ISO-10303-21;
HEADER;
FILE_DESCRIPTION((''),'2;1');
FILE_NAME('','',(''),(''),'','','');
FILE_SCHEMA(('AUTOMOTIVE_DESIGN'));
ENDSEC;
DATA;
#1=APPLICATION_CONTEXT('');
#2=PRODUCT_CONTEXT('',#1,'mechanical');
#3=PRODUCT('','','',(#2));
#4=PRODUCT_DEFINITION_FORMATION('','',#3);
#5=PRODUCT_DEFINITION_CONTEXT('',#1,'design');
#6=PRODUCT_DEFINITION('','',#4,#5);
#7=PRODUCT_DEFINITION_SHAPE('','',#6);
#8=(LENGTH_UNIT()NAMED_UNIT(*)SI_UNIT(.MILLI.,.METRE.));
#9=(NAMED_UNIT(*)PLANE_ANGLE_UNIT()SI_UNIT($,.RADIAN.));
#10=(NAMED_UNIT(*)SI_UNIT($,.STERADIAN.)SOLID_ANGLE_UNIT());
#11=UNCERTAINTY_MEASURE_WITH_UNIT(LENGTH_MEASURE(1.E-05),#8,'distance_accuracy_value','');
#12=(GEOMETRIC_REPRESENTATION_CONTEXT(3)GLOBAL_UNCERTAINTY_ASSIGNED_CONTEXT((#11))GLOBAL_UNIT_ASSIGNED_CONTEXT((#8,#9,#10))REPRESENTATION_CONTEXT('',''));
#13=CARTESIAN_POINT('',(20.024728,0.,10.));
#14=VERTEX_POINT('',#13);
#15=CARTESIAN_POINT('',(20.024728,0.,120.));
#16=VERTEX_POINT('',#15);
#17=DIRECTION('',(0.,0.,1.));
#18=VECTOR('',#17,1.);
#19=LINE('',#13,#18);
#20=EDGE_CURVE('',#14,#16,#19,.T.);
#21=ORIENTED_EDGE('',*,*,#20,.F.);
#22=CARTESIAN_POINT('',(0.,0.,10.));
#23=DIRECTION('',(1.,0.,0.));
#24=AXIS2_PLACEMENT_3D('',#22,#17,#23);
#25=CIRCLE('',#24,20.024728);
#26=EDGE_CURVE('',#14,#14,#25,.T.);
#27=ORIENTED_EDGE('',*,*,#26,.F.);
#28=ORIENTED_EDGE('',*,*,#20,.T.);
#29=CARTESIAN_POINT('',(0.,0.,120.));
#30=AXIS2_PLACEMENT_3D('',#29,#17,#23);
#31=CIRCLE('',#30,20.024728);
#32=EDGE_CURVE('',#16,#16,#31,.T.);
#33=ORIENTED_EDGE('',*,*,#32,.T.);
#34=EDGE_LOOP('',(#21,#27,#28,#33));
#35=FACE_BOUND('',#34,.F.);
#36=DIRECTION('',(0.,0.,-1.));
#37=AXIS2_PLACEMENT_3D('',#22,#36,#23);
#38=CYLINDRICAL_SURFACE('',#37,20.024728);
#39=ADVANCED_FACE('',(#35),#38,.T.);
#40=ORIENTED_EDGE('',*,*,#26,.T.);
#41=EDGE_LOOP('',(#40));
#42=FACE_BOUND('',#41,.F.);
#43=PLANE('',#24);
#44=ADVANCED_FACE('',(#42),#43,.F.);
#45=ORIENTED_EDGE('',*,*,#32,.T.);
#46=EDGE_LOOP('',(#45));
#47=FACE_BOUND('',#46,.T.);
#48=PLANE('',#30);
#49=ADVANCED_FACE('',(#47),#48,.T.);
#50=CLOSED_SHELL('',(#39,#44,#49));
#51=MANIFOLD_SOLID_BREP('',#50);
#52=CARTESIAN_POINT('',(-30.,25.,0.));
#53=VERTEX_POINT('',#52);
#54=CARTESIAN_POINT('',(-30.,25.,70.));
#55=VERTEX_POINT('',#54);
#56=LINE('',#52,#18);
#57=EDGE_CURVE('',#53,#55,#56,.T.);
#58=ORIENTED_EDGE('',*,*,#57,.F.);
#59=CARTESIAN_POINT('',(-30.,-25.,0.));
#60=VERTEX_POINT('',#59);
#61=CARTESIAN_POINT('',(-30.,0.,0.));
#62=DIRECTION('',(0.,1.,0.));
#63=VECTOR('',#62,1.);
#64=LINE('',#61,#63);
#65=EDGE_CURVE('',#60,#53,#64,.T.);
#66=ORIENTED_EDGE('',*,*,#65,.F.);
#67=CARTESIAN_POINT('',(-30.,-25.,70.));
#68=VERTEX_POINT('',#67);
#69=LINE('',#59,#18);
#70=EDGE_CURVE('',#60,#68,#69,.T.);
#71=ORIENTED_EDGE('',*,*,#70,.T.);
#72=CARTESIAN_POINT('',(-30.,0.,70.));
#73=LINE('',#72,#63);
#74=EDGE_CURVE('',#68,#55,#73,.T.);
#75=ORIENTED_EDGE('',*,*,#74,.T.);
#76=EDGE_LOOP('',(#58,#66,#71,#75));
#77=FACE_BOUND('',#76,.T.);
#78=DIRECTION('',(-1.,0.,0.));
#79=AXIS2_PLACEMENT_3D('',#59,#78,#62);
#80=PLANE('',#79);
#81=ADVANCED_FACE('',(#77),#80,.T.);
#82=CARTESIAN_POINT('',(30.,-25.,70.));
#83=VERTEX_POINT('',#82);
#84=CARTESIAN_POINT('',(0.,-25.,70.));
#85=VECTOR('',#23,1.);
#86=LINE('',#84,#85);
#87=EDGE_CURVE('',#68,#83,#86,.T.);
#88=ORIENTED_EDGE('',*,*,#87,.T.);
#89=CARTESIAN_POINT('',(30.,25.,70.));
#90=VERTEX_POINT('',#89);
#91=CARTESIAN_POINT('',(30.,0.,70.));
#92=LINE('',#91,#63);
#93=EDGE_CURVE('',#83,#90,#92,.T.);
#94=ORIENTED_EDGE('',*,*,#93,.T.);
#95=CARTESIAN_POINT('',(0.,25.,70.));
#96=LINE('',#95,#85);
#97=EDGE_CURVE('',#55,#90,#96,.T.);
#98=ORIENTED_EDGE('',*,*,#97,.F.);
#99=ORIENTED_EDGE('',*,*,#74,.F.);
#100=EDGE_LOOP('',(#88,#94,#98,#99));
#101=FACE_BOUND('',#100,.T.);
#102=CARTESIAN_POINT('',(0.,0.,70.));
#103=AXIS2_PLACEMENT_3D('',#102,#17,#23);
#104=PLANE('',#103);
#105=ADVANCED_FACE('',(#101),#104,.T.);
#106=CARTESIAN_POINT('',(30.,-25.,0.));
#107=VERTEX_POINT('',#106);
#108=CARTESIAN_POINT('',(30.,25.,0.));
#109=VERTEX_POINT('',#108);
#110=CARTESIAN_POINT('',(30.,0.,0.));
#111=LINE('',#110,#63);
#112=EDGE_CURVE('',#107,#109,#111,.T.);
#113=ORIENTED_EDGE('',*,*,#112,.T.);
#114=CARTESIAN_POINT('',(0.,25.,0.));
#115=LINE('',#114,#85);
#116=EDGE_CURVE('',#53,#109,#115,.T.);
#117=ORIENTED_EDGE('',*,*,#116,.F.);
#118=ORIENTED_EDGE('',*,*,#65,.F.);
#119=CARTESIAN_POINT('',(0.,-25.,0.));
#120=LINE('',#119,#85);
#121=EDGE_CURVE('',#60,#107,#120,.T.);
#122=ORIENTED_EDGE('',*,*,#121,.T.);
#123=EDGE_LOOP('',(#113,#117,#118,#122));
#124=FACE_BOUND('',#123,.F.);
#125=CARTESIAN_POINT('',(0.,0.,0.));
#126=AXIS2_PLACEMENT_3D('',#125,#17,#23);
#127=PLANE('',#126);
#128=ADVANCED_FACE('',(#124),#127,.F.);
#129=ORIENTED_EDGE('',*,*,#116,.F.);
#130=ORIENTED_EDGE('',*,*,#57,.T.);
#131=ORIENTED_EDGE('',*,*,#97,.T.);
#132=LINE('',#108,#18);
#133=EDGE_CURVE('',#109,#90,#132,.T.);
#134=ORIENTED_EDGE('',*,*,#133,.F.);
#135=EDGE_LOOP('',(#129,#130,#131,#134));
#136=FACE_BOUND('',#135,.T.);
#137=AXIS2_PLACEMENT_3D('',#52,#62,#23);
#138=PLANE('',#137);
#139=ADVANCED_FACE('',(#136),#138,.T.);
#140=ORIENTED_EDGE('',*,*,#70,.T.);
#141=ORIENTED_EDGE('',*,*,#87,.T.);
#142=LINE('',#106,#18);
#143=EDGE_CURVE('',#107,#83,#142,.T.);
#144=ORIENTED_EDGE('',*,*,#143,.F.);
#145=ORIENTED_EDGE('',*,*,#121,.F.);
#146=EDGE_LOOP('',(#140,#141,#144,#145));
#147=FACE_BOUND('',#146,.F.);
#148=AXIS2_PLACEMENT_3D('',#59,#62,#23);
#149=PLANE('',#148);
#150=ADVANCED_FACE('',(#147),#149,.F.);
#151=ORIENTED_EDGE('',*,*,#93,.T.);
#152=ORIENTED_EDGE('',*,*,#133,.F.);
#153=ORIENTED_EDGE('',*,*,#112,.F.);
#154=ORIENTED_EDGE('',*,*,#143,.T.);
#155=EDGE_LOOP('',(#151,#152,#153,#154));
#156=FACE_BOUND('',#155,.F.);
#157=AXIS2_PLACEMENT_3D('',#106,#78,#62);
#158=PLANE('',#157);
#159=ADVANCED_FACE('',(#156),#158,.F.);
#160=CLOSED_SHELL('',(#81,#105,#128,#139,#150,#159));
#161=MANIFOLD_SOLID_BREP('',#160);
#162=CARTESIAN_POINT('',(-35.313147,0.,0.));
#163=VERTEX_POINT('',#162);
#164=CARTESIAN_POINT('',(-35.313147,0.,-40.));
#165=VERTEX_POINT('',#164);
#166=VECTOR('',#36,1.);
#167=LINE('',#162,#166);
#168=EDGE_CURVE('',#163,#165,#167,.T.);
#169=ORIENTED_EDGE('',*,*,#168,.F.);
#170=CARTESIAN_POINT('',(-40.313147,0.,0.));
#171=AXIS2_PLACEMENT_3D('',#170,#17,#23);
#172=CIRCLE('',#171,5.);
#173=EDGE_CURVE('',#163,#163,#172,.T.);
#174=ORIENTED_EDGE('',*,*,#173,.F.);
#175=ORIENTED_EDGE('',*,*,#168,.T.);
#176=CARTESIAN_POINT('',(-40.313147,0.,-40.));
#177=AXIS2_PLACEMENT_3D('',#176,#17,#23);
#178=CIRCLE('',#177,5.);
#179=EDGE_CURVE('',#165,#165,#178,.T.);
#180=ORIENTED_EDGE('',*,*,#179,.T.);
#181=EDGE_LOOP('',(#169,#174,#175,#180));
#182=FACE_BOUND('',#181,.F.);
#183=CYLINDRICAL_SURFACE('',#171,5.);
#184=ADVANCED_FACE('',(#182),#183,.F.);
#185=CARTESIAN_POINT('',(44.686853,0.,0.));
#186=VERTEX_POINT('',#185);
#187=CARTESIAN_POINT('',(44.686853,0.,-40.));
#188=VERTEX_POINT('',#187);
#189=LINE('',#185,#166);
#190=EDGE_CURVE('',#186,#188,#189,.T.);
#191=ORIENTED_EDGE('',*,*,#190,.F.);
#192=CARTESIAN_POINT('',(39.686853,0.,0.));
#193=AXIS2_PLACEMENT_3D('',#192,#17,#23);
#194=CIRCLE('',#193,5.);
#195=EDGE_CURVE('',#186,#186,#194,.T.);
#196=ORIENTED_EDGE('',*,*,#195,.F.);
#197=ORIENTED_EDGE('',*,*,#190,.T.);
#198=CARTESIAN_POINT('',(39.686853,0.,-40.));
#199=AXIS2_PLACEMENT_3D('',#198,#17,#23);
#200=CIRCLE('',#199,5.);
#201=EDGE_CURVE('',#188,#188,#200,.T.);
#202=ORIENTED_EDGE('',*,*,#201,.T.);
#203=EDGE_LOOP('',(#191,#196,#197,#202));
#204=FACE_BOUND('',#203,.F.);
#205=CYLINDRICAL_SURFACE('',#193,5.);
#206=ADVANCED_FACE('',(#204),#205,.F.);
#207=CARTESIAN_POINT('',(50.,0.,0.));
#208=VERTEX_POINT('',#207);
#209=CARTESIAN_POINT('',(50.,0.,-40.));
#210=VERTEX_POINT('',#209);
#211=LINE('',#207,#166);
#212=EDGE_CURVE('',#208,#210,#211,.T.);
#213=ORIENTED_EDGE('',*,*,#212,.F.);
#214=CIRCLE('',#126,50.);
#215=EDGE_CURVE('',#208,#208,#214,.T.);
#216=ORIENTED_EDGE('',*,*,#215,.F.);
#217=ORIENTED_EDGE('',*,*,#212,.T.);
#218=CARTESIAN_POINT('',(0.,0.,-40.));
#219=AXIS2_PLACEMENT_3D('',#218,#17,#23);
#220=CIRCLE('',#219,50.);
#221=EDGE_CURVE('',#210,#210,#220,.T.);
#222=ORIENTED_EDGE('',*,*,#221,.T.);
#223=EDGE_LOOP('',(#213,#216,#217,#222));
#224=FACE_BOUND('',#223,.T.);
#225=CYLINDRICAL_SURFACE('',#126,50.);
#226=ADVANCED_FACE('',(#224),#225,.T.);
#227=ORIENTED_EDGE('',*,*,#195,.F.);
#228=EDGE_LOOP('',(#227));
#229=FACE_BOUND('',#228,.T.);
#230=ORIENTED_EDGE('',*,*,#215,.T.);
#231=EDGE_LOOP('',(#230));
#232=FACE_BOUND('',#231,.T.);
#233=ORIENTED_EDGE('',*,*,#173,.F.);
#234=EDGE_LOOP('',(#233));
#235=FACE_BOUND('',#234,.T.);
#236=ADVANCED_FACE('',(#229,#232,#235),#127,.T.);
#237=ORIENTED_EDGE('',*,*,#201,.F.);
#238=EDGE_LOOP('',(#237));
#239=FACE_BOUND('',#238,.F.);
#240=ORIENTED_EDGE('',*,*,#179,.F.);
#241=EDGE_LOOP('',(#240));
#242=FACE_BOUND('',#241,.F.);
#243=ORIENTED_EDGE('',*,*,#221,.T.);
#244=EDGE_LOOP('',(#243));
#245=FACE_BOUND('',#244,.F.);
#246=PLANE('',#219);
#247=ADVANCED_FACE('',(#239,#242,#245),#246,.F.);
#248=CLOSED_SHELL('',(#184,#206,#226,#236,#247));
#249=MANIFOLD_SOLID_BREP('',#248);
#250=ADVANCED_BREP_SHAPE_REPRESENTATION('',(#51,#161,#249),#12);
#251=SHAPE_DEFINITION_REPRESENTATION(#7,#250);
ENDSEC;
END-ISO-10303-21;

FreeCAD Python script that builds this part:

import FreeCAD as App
import Part
import Sketcher
from FreeCAD import Vector


def add_polygon(sketch, points):
    """Adds a closed chain of lines whose ends are joined by coincident constraints."""
    first, n = sketch.GeometryCount, len(points)
    for a, b in zip(points, points[1:] + points[:1]):
        sketch.addGeometry(Part.LineSegment(App.Vector(*a, 0), App.Vector(*b, 0)), False)
    for i in range(n):
        sketch.addConstraint(Sketcher.Constraint("Coincident", first + i, 2, first + (i + 1) % n, 1))

doc = App.newDocument("Part")
body = doc.addObject("PartDesign::Body", "Body")

sketch1 = doc.addObject("Sketcher::SketchObject", "Sketch")
body.addObject(sketch1)
sketch1.AttachmentSupport = (doc.XY_Plane, [""])
sketch1.MapMode = "FlatFace"
sketch1.addGeometry(Part.Circle(Vector(0, 0, 0), Vector(0, 0, 1), 50), False)
sketch1.addConstraint([
    Sketcher.Constraint("Coincident", 0, 3, -1, 1),
    Sketcher.Constraint("Diameter", 0, 100.0),
])
pad1 = doc.addObject("PartDesign::Pad", "Pad")
body.addObject(pad1)
pad1.Profile = sketch1
pad1.Length = 40
pad1.Reversed = True

sketch2 = doc.addObject("Sketcher::SketchObject", "Sketch001")
body.addObject(sketch2)
sketch2.AttachmentSupport = (doc.XY_Plane, [""])
sketch2.MapMode = "FlatFace"
sketch2.addGeometry([
    Part.Circle(Vector(-40.313147, 0, 0), Vector(0, 0, 1), 5),
    Part.Circle(Vector(39.686853, 0, 0), Vector(0, 0, 1), 5),
], False)
sketch2.addConstraint([
    Sketcher.Constraint("Equal", 0, 1),
    Sketcher.Constraint("PointOnObject", 0, 3, -1),
    Sketcher.Constraint("PointOnObject", 1, 3, -1),
    Sketcher.Constraint("Diameter", 0, 10.0),
    Sketcher.Constraint("DistanceX", 0, 3, 1, 3, 80.0),
    Sketcher.Constraint("DistanceX", 0, 3, -1, 1, 40.313147),
])
pocket1 = doc.addObject("PartDesign::Pocket", "Pocket")
body.addObject(pocket1)
pocket1.Profile = sketch2
pocket1.Type = "ThroughAll"
pocket1.Midplane = True
body2 = doc.addObject("PartDesign::Body", "Body001")

sketch3 = doc.addObject("Sketcher::SketchObject", "Sketch002")
body2.addObject(sketch3)
sketch3.AttachmentSupport = (doc.getObject("XY_Plane001"), [""])
sketch3.MapMode = "FlatFace"
add_polygon(sketch3, [(-30, 25), (-30, -25), (30, -25), (30, 25)])
sketch3.addConstraint([
    Sketcher.Constraint("Vertical", 0),
    Sketcher.Constraint("Horizontal", 1),
    Sketcher.Constraint("Vertical", 2),
    Sketcher.Constraint("Horizontal", 3),
    Sketcher.Constraint("Symmetric", 0, 2, 2, 2, -1, 1),
    Sketcher.Constraint("DistanceX", 1, 1, 1, 2, 60.0),
    Sketcher.Constraint("DistanceY", 0, 2, 0, 1, 50.0),
])
pad2 = doc.addObject("PartDesign::Pad", "Pad001")
body2.addObject(pad2)
pad2.Profile = sketch3
pad2.Length = 70
body3 = doc.addObject("PartDesign::Body", "Body002")

sketch4 = doc.addObject("Sketcher::SketchObject", "Sketch003")
body3.addObject(sketch4)
sketch4.AttachmentSupport = (doc.getObject("XY_Plane002"), [""])
sketch4.MapMode = "FlatFace"
sketch4.AttachmentOffset = App.Placement(Vector(0, 0, 10), App.Rotation())
sketch4.addGeometry(Part.Circle(Vector(0, 0, 0), Vector(0, 0, 1), 20.024728), False)
sketch4.addConstraint([
    Sketcher.Constraint("Coincident", 0, 3, -1, 1),
    Sketcher.Constraint("Diameter", 0, 40.049456),
])
pad3 = doc.addObject("PartDesign::Pad", "Pad002")
body3.addObject(pad3)
pad3.Profile = sketch4
pad3.Length = 110

doc.recompute()
